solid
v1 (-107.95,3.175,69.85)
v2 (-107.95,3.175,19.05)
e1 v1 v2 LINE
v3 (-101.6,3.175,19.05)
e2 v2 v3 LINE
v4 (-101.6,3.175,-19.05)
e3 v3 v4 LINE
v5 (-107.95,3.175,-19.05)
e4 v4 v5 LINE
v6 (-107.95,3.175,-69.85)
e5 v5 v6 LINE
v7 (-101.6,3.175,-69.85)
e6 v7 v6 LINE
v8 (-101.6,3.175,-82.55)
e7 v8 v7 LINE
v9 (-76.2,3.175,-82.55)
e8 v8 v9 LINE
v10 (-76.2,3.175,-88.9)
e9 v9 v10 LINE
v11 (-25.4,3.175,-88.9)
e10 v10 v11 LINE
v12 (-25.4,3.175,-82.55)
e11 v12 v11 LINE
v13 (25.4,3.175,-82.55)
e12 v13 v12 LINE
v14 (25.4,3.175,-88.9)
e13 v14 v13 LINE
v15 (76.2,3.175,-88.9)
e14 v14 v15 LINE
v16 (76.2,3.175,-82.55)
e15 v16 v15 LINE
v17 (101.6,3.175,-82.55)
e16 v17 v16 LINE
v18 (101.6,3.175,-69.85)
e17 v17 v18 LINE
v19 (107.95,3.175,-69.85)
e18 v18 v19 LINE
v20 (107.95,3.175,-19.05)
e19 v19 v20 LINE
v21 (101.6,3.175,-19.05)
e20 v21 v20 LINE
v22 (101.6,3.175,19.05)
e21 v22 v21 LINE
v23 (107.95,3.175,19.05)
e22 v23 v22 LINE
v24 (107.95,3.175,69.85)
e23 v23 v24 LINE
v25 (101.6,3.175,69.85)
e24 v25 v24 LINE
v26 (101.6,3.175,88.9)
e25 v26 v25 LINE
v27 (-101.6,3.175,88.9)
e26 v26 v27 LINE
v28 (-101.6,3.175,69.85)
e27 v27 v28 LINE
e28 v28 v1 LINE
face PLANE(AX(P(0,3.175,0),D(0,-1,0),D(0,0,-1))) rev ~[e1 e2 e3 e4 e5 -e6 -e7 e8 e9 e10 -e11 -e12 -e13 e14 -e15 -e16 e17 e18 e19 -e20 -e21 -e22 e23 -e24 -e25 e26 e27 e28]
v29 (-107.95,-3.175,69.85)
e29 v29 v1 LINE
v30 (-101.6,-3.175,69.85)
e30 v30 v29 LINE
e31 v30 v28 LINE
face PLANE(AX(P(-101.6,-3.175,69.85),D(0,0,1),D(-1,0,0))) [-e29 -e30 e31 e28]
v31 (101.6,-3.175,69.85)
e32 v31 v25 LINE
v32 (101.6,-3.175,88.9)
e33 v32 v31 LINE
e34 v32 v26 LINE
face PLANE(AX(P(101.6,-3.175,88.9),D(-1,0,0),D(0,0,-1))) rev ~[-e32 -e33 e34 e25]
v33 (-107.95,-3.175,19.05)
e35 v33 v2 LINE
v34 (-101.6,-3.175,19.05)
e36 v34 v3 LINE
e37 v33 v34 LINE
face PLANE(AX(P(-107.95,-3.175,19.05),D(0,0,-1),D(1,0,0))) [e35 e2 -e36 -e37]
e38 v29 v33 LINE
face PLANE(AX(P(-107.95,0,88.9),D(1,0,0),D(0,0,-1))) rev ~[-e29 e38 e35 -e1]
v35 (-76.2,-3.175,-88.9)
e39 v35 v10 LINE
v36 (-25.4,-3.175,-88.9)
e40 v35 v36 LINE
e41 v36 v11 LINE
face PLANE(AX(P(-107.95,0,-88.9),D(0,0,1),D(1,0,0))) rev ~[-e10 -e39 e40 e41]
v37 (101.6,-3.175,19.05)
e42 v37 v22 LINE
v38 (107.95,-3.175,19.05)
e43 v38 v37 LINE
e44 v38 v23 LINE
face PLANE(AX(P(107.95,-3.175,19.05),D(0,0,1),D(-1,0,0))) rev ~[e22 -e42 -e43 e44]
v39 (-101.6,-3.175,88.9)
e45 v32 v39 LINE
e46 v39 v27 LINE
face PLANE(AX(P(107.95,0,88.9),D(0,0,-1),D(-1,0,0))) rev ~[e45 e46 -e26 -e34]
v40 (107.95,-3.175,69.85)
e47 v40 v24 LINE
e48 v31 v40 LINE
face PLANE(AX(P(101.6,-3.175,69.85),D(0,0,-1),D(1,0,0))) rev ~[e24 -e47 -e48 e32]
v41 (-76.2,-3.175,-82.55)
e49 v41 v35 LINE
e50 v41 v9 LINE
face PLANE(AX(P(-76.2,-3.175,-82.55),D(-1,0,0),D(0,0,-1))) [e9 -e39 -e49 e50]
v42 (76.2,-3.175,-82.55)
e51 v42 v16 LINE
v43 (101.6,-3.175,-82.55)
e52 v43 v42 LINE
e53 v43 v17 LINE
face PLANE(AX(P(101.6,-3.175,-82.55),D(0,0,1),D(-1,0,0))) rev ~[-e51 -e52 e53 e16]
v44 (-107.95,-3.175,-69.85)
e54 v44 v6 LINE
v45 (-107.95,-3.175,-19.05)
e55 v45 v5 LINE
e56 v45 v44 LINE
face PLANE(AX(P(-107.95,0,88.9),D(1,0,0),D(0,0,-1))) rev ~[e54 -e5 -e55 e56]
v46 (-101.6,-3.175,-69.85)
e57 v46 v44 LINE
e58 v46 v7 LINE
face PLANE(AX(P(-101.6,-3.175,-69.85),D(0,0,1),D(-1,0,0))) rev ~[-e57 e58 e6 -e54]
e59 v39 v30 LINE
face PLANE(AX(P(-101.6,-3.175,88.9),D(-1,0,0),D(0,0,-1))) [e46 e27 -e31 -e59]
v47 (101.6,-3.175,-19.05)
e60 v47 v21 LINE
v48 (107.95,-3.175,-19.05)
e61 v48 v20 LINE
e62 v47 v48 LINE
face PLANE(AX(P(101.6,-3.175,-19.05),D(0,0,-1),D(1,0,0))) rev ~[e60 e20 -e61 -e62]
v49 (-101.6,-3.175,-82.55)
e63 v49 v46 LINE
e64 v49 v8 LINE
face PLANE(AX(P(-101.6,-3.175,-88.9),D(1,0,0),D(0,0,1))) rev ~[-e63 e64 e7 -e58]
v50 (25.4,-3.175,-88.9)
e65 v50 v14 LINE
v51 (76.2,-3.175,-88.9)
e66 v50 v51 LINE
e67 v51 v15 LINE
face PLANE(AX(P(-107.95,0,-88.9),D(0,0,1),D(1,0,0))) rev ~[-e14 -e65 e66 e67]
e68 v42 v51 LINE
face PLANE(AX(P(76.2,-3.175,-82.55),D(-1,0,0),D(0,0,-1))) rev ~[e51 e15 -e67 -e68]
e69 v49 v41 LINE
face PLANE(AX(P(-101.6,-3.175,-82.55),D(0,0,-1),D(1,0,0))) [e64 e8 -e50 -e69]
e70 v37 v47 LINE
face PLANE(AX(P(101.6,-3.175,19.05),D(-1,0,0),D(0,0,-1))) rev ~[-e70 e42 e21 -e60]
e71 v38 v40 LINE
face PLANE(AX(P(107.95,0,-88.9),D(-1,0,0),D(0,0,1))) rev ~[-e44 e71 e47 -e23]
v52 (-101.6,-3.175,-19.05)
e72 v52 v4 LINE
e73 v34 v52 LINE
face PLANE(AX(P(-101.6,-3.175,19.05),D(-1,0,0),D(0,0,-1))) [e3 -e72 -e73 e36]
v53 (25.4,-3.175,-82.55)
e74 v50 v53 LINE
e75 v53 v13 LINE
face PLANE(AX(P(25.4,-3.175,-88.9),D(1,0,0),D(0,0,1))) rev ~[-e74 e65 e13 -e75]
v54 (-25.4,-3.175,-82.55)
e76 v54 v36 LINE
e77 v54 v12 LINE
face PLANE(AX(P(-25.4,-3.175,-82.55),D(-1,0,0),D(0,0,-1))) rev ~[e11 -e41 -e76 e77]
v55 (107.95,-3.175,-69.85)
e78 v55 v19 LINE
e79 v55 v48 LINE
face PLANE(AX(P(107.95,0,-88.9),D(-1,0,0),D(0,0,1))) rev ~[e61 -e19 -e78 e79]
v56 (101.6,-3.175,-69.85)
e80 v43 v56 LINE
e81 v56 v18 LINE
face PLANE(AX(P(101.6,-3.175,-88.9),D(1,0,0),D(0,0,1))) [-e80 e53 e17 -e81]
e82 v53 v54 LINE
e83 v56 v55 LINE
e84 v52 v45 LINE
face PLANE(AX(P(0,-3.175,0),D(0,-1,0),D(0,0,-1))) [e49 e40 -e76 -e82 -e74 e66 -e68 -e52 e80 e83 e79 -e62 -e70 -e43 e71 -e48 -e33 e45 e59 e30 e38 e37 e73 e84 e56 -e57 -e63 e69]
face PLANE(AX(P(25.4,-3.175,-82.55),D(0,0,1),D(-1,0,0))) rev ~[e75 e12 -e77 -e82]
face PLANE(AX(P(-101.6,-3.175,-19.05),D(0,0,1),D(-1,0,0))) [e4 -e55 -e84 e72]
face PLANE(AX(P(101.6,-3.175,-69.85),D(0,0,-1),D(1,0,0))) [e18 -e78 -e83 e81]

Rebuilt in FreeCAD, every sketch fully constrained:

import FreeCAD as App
import Part
import Sketcher
Q = App.Units.Quantity


def add_polygon(sketch, points):
    """Adds a closed chain of lines whose ends are joined by coincident constraints."""
    first, n = sketch.GeometryCount, len(points)
    for a, b in zip(points, points[1:] + points[:1]):
        sketch.addGeometry(Part.LineSegment(App.Vector(*a, 0), App.Vector(*b, 0)), False)
    for i in range(n):
        sketch.addConstraint(Sketcher.Constraint("Coincident", first + i, 2, first + (i + 1) % n, 1))

doc = App.newDocument("Part")
params = doc.addObject("Spreadsheet::Sheet", "Params")
for row, (alias, value) in enumerate([
    ("sketch1_height", "7 in"),
    ("pad1_length", "0.25 in"),
    ("sketch2_height", "1.5 in"),
    ("sketch3_height", "0.25 in"),
], start=1):
    params.set(f"A{row}", alias)
    params.set(f"B{row}", "=" + value)
    params.setAlias(f"B{row}", alias)

body = doc.addObject("PartDesign::Body", "Body")

sketch1 = doc.addObject("Sketcher::SketchObject", "Sketch")
body.addObject(sketch1)
sketch1.AttachmentSupport = (doc.XZ_Plane, [""])
sketch1.MapMode = "FlatFace"
add_polygon(sketch1, [(-108, 89), (-108, -89), (108, -89), (108, 89)])
sketch1.addConstraint([
    Sketcher.Constraint("Vertical", 0),
    Sketcher.Constraint("Horizontal", 1),
    Sketcher.Constraint("Vertical", 2),
    Sketcher.Constraint("Horizontal", 3),
    Sketcher.Constraint("Symmetric", 0, 2, 2, 2, -1, 1),
    Sketcher.Constraint("DistanceY", 0, 2, 0, 1, Q("7 in")),
    Sketcher.Constraint("DistanceX", 0, 2, -1, 1, Q("4.25 in")),
])
sketch1.setExpression("Constraints[9]", "Params.sketch1_height")
pad1 = doc.addObject("PartDesign::Pad", "Pad")
body.addObject(pad1)
pad1.Profile = sketch1
pad1.setExpression("Length", "Params.pad1_length")
pad1.Midplane = True

sketch2 = doc.addObject("Sketcher::SketchObject", "Sketch001")
body.addObject(sketch2)
sketch2.AttachmentSupport = (doc.XZ_Plane, [""])
sketch2.MapMode = "FlatFace"
sketch2.AttachmentOffset = App.Placement(App.Vector(0, 0, 0.125 * 25.4), App.Rotation())
add_polygon(sketch2, [(108, 70), (108, 89), (102, 89), (102, 70)])
add_polygon(sketch2, [(108, -19), (108, 19), (102, 19), (102, -19)])
add_polygon(sketch2, [(102, -89), (108, -89), (108, -70), (102, -70)])
add_polygon(sketch2, [(-102, 89), (-108, 89), (-108, 70), (-102, 70)])
add_polygon(sketch2, [(-102, 19), (-108, 19), (-108, -19), (-102, -19)])
add_polygon(sketch2, [(-108, -70), (-108, -89), (-102, -89), (-102, -70)])
sketch2.addConstraint([
    Sketcher.Constraint("Vertical", 0),
    Sketcher.Constraint("Horizontal", 1),
    Sketcher.Constraint("Vertical", 2),
    Sketcher.Constraint("Horizontal", 3),
    Sketcher.Constraint("Vertical", 4),
    Sketcher.Constraint("Horizontal", 5),
    Sketcher.Constraint("Vertical", 6),
    Sketcher.Constraint("Horizontal", 7),
    Sketcher.Constraint("Horizontal", 8),
    Sketcher.Constraint("Vertical", 9),
    Sketcher.Constraint("Horizontal", 10),
    Sketcher.Constraint("Vertical", 11),
    Sketcher.Constraint("Horizontal", 12),
    Sketcher.Constraint("Vertical", 13),
    Sketcher.Constraint("Horizontal", 14),
    Sketcher.Constraint("Vertical", 15),
    Sketcher.Constraint("Horizontal", 16),
    Sketcher.Constraint("Vertical", 17),
    Sketcher.Constraint("Horizontal", 18),
    Sketcher.Constraint("Vertical", 19),
    Sketcher.Constraint("Vertical", 20),
    Sketcher.Constraint("Horizontal", 21),
    Sketcher.Constraint("Vertical", 22),
    Sketcher.Constraint("Horizontal", 23),
    Sketcher.Constraint("Symmetric", 8, 2, 12, 2, -1, 1),
    Sketcher.Constraint("Symmetric", 10, 2, 14, 2, -1, 1),
    Sketcher.Constraint("Symmetric", 7, 2, 16, 2, -1, 1),
    Sketcher.Constraint("Symmetric", 5, 2, 18, 2, -1, 1),
    Sketcher.Constraint("Symmetric", 0, 2, 20, 2, -1, 1),
    Sketcher.Constraint("Symmetric", 2, 2, 22, 2, -1, 1),
    Sketcher.Constraint("Symmetric", 0, 2, 12, 2, -2),
    Sketcher.Constraint("Symmetric", 2, 2, 14, 2, -2),
    Sketcher.Constraint("Horizontal", 5, 2, 16, 2),
    Sketcher.Constraint("Vertical", 3, 2, 4, 2),
    Sketcher.Constraint("Vertical", 2, 2, 5, 2),
    Sketcher.Constraint("DistanceX", -1, 1, 0, 2, Q("4.25 in")),
    Sketcher.Constraint("DistanceY", 6, 2, 1, 2, Q("4.25 in")),
    Sketcher.Constraint("DistanceY", 4, 1, 4, 2, Q("1.5 in")),
    Sketcher.Constraint("DistanceX", -1, 1, 1, 2, Q("4 in")),
    Sketcher.Constraint("DistanceY", 4, 2, 3, 2, Q("2 in")),
])
sketch2.setExpression("Constraints[61]", "Params.sketch2_height")
pocket1 = doc.addObject("PartDesign::Pocket", "Pocket")
body.addObject(pocket1)
pocket1.Profile = sketch2
pocket1.Type = "ThroughAll"

sketch3 = doc.addObject("Sketcher::SketchObject", "Sketch002")
body.addObject(sketch3)
sketch3.AttachmentSupport = (doc.XZ_Plane, [""])
sketch3.MapMode = "FlatFace"
sketch3.AttachmentOffset = App.Placement(App.Vector(0, 0, 0.125 * 25.4), App.Rotation())
add_polygon(sketch3, [(102, -89), (102, -83), (76, -83), (76, -89)])
add_polygon(sketch3, [(-76, -83), (-102, -83), (-102, -89), (-76, -89)])
add_polygon(sketch3, [(-25, -83), (-25, -89), (25, -89), (25, -83)])
sketch3.addConstraint([
    Sketcher.Constraint("Vertical", 0),
    Sketcher.Constraint("Horizontal", 1),
    Sketcher.Constraint("Vertical", 2),
    Sketcher.Constraint("Horizontal", 3),
    Sketcher.Constraint("Horizontal", 4),
    Sketcher.Constraint("Vertical", 5),
    Sketcher.Constraint("Horizontal", 6),
    Sketcher.Constraint("Vertical", 7),
    Sketcher.Constraint("Vertical", 8),
    Sketcher.Constraint("Horizontal", 9),
    Sketcher.Constraint("Vertical", 10),
    Sketcher.Constraint("Horizontal", 11),
    Sketcher.Constraint("Symmetric", 0, 2, 4, 2, -2),
    Sketcher.Constraint("Symmetric", 2, 2, 6, 2, -2),
    Sketcher.Constraint("Horizontal", 6, 2, 8, 2),
    Sketcher.Constraint("Horizontal", 7, 2, 10, 2),
    Sketcher.Constraint("DistanceX", -1, 1, 0, 2, Q("4 in")),
    Sketcher.Constraint("DistanceX", -1, 1, 1, 2, Q("3 in")),
    Sketcher.Constraint("DistanceX", 5, 2, 8, 2, Q("3 in")),
    Sketcher.Constraint("DistanceX", 9, 2, 3, 2, Q("3 in")),
    Sketcher.Constraint("DistanceY", 0, 1, 0, 2, Q("0.25 in")),
    Sketcher.Constraint("DistanceY", 2, 2, -1, 1, Q("3.5 in")),
])
sketch3.setExpression("Constraints[32]", "Params.sketch3_height")
pocket2 = doc.addObject("PartDesign::Pocket", "Pocket001")
body.addObject(pocket2)
pocket2.Profile = sketch3
pocket2.Type = "ThroughAll"

doc.recompute()
